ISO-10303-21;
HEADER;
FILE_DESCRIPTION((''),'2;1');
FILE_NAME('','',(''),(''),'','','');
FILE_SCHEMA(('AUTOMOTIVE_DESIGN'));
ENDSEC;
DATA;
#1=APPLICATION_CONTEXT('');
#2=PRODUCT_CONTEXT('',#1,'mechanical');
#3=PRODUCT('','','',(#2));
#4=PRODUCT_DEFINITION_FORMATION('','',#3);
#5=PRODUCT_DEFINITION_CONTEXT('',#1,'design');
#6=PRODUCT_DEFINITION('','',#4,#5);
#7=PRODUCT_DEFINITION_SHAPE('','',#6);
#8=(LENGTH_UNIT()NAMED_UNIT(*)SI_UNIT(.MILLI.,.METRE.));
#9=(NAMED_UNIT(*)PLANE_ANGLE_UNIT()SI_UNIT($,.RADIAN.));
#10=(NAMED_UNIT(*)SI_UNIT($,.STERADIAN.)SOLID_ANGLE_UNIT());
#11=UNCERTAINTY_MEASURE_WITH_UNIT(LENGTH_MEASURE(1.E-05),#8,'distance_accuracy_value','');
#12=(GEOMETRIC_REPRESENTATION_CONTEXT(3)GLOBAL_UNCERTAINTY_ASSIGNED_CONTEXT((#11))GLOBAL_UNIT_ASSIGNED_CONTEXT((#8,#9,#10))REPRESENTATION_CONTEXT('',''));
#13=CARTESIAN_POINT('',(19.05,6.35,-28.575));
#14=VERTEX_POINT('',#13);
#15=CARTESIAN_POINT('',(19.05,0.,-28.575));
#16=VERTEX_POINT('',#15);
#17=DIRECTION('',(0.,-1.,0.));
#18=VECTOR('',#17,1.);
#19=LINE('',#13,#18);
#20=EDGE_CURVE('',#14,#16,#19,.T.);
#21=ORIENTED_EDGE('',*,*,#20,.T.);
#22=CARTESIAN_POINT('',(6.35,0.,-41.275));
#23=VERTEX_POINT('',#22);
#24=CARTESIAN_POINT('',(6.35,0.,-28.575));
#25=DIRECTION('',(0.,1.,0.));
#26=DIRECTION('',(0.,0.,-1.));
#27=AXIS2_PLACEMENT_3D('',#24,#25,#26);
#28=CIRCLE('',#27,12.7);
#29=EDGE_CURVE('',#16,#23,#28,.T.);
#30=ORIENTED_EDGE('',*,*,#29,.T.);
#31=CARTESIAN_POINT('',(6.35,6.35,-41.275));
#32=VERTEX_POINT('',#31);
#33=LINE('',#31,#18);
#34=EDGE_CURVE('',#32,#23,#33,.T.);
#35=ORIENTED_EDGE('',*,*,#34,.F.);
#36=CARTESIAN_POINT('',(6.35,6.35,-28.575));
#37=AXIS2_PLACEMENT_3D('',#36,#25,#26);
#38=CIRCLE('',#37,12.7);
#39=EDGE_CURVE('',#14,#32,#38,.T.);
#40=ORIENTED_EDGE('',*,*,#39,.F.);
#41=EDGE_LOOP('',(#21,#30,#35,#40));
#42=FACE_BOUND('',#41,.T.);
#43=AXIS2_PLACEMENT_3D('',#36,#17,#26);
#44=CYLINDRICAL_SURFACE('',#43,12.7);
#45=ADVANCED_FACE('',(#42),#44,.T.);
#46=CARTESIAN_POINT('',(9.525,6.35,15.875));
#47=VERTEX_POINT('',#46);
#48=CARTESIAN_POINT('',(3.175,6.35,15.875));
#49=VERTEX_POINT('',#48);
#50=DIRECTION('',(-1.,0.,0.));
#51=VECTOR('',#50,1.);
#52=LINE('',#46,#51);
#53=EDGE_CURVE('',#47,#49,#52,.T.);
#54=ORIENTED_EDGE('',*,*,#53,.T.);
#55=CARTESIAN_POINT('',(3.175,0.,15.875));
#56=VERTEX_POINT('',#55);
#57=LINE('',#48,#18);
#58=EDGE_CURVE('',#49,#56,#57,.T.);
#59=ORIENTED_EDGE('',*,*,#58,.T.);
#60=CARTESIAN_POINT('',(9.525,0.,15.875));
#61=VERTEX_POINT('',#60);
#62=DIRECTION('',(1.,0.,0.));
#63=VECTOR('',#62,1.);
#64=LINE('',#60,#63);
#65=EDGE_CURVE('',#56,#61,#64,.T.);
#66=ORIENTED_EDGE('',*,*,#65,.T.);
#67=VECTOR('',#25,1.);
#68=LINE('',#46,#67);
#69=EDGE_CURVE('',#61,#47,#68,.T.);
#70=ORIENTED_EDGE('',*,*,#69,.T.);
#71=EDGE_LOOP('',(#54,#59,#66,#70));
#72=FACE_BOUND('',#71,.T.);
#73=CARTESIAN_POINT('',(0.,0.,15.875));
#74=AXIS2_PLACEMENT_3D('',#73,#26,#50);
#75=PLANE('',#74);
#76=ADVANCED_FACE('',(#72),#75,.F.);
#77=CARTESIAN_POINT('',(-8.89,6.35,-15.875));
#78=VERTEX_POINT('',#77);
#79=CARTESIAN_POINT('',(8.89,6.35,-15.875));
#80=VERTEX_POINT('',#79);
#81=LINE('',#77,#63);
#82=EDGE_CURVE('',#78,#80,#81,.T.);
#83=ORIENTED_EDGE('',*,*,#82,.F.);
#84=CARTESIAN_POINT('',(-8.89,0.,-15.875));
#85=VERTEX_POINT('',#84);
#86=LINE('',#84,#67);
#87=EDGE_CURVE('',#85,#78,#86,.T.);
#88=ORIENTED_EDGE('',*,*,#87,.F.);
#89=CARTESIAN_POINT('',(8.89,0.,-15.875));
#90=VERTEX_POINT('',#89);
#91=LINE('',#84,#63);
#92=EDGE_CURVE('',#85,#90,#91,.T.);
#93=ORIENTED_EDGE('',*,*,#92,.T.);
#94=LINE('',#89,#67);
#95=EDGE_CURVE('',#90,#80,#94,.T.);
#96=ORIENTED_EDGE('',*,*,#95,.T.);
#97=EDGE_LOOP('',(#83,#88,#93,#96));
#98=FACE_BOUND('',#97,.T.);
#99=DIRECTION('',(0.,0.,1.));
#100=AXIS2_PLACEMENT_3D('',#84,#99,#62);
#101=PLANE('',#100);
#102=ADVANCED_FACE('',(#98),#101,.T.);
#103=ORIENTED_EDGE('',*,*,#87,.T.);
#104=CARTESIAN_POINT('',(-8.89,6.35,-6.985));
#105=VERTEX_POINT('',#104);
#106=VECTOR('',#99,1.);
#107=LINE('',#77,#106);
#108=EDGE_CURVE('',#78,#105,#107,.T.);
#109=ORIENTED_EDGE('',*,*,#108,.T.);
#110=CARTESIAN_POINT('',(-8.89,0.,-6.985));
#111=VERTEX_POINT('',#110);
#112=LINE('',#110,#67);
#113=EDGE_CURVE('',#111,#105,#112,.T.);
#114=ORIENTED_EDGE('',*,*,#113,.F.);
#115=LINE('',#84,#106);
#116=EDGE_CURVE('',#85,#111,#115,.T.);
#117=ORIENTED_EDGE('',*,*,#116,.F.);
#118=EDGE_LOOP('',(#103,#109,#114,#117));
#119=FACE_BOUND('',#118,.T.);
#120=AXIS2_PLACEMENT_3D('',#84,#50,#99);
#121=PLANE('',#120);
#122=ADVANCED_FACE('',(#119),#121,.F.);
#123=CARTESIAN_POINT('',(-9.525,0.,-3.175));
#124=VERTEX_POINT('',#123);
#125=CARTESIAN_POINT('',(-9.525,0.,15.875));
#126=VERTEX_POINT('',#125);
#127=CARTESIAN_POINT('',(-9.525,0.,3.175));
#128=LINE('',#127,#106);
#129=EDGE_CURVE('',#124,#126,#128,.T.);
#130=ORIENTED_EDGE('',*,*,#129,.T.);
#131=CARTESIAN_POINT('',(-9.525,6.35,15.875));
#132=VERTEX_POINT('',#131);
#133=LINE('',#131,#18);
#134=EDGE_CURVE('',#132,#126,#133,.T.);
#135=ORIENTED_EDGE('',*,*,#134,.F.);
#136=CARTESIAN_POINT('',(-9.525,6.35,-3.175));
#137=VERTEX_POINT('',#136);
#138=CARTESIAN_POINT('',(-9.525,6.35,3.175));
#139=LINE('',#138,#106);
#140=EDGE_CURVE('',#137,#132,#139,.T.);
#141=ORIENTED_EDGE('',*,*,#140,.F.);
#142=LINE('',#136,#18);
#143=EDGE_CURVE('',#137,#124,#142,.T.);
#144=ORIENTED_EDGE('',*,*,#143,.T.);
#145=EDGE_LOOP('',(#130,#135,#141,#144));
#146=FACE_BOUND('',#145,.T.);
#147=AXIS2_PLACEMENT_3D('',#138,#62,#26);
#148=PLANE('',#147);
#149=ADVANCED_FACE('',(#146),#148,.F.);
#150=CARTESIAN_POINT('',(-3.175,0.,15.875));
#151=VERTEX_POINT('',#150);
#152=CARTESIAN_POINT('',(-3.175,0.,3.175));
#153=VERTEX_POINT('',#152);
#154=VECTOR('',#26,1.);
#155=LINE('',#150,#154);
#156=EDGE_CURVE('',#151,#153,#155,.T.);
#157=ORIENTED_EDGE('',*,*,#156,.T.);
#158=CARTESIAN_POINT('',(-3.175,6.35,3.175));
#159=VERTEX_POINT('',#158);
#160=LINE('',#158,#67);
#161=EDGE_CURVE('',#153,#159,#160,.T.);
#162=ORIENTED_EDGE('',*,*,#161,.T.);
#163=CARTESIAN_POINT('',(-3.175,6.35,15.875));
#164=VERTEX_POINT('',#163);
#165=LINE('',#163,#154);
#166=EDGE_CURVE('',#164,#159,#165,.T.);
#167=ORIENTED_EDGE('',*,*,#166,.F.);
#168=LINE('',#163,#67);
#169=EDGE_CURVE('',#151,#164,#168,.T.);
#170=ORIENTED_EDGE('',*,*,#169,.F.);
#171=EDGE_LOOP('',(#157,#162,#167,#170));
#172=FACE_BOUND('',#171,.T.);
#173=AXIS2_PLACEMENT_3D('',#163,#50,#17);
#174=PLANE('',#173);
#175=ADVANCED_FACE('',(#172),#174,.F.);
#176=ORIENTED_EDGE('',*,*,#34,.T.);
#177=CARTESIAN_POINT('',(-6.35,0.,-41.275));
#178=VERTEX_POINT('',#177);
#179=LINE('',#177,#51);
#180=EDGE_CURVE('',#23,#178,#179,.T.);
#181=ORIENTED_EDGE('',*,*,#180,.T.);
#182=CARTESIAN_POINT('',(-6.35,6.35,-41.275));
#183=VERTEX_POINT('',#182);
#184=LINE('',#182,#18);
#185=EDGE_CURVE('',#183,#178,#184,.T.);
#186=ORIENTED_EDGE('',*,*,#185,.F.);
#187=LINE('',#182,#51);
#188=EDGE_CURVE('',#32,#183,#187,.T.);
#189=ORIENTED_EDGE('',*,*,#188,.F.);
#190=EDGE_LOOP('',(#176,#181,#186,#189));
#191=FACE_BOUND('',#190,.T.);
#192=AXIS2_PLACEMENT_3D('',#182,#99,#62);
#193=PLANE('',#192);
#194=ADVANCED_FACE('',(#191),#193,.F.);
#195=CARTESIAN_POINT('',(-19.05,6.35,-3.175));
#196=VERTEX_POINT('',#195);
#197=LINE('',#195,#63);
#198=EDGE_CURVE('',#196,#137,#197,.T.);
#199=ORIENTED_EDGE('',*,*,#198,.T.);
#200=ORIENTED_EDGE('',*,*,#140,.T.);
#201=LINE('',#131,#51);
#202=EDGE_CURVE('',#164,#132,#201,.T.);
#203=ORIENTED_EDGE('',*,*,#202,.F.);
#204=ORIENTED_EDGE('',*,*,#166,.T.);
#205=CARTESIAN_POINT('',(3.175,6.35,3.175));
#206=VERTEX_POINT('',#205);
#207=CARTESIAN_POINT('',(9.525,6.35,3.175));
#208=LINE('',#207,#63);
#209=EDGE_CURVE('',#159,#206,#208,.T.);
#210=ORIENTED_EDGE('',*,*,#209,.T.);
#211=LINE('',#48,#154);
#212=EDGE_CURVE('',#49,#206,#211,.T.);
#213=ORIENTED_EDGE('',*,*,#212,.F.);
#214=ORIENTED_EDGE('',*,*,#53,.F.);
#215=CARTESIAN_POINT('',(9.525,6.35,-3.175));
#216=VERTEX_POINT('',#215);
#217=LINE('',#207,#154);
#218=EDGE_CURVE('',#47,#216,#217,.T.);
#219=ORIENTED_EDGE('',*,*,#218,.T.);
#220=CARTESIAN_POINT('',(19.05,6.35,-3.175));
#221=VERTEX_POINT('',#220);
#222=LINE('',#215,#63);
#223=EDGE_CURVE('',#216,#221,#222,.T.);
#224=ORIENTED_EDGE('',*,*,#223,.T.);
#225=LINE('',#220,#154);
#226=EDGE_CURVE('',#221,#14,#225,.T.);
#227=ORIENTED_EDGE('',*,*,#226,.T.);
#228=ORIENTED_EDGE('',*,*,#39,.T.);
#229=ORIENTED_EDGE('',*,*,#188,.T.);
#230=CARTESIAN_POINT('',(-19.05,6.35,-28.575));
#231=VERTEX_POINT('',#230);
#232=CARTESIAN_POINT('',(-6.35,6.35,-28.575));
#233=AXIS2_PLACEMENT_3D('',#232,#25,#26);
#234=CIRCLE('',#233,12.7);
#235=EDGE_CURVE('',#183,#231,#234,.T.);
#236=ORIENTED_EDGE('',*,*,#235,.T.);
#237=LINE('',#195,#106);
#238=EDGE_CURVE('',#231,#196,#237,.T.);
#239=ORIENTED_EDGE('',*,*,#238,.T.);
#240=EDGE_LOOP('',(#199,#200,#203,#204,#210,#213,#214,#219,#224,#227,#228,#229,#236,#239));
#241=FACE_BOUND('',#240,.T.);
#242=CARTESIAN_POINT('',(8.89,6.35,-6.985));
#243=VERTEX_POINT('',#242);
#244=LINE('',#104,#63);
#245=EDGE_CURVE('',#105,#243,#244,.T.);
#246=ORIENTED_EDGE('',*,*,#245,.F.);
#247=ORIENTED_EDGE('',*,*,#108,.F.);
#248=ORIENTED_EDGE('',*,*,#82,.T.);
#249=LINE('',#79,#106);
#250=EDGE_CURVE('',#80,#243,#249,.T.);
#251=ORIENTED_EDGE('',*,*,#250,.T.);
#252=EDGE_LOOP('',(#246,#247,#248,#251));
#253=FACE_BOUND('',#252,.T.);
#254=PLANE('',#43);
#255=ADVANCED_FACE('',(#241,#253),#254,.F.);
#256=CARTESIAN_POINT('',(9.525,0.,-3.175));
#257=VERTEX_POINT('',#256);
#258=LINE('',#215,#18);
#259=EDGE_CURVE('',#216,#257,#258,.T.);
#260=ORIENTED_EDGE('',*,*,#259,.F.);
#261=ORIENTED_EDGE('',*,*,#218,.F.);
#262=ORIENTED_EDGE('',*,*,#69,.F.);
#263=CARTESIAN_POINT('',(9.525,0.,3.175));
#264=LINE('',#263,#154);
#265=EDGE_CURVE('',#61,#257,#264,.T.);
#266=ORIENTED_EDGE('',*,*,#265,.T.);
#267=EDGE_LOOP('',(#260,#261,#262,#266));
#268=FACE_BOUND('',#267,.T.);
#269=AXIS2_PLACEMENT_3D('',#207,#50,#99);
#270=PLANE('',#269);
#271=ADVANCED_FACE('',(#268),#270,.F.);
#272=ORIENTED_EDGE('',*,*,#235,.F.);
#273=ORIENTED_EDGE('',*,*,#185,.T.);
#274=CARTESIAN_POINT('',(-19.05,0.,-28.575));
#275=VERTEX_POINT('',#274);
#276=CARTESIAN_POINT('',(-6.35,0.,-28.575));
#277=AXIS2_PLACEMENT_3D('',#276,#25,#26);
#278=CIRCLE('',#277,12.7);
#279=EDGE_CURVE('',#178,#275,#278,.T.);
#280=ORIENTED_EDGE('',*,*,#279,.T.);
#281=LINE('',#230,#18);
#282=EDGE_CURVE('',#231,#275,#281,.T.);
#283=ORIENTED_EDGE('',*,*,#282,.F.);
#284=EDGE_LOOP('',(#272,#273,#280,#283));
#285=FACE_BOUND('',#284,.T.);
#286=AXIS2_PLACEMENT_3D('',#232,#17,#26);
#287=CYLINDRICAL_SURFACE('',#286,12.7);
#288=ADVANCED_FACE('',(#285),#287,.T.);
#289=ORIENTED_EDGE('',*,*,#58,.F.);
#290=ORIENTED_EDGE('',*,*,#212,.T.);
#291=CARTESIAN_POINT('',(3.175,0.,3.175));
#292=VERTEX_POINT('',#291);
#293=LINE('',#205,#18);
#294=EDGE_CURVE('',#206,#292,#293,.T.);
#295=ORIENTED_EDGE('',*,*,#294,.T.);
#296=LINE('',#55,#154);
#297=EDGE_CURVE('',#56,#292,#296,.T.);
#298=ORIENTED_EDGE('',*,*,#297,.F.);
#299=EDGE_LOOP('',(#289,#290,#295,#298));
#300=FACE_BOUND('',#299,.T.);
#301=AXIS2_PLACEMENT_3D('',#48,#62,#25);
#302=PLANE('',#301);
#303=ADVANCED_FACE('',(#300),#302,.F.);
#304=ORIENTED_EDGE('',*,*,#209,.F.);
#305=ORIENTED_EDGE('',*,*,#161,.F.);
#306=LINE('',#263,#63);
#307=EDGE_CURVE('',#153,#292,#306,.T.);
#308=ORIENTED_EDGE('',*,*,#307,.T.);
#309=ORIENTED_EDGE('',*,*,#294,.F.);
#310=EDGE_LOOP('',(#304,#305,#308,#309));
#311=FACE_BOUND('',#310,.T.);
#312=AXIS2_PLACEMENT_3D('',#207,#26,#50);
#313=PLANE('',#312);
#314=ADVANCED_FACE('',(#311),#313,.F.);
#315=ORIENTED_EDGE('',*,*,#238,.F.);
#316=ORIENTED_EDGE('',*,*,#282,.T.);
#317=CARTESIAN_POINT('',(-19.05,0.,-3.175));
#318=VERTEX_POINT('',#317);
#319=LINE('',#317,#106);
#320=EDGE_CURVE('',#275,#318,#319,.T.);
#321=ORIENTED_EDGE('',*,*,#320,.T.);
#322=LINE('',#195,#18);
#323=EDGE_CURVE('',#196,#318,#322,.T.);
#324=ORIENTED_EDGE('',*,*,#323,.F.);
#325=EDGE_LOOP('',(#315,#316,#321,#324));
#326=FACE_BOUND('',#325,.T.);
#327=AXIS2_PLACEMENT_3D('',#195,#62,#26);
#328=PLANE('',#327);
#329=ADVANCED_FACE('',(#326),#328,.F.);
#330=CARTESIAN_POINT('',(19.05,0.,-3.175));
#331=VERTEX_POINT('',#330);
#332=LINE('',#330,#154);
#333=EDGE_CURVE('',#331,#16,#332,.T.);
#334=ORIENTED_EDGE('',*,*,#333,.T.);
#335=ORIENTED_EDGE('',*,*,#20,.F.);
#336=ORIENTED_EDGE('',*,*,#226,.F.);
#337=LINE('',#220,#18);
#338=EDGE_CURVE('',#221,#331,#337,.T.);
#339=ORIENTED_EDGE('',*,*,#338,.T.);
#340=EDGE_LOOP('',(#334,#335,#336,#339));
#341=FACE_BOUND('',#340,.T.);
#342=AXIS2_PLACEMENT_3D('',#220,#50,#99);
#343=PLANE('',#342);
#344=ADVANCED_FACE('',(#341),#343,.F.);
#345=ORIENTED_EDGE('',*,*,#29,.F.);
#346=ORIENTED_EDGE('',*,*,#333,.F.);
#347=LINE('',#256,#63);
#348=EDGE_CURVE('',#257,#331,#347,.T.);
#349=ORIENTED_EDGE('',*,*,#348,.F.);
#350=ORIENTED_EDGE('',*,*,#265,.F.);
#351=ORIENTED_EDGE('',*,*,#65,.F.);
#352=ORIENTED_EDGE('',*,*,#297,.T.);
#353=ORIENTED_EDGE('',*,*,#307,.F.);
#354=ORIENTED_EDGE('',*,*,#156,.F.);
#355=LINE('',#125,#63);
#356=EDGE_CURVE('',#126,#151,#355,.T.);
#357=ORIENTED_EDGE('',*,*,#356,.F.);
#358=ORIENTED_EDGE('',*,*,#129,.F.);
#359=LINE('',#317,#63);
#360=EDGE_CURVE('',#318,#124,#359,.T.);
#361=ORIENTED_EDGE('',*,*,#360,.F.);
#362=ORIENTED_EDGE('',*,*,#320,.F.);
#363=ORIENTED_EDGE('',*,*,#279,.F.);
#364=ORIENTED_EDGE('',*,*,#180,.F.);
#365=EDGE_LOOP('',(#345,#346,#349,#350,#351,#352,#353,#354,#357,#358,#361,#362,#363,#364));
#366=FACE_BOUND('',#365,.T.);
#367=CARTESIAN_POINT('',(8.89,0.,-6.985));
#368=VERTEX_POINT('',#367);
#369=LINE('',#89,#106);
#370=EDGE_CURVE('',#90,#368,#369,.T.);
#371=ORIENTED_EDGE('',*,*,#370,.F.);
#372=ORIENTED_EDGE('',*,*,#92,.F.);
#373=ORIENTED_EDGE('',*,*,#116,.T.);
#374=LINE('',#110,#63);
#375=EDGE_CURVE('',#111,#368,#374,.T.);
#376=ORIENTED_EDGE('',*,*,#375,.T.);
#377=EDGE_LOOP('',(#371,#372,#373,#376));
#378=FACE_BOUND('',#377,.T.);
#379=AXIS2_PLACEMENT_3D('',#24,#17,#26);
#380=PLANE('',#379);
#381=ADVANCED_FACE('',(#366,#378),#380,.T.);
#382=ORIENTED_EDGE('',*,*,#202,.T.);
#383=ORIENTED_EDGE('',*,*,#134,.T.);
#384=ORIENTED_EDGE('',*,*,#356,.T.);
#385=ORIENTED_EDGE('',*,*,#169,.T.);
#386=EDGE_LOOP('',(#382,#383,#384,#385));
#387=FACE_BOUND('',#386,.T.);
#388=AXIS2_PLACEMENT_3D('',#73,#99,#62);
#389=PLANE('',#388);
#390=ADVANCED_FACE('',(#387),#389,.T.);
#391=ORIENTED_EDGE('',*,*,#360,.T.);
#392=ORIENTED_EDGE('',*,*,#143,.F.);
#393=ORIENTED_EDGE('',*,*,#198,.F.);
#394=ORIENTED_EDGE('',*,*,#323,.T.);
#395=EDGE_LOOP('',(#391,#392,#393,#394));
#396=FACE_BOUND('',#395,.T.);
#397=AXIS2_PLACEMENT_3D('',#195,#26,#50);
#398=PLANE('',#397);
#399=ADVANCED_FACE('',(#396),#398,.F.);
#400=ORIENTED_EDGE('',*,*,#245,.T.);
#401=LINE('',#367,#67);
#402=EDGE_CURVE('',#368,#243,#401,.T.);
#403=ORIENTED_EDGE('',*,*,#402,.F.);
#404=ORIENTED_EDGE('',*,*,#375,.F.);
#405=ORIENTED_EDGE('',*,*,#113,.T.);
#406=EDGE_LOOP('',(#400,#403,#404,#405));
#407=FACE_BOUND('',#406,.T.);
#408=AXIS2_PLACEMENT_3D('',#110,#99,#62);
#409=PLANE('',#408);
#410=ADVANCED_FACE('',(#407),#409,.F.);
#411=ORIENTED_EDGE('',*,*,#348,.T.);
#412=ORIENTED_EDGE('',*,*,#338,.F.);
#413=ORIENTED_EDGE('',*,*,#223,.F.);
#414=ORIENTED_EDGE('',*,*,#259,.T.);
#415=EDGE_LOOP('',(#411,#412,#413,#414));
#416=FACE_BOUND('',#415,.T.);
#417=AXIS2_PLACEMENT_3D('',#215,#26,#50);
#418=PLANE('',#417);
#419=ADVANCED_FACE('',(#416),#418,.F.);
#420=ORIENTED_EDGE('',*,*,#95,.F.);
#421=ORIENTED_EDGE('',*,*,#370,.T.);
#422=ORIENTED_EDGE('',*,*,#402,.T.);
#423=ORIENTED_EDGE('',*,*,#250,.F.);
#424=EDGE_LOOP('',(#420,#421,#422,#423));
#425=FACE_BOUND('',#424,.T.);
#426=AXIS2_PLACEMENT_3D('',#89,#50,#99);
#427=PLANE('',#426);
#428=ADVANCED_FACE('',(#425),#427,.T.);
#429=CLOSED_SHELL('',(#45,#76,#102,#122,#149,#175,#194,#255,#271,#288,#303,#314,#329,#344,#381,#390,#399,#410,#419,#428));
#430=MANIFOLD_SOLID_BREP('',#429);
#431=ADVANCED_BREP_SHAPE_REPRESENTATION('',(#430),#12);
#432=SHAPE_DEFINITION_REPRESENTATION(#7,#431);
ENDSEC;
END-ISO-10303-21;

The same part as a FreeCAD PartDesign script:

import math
import FreeCAD as App
import Part
import Sketcher
from FreeCAD import Vector
Q = App.Units.Quantity

doc = App.newDocument("Part")
params = doc.addObject("Spreadsheet::Sheet", "Params")
for row, (alias, value) in enumerate([
    ("sketch1_radius", "0.5 in"),
    ("sketch1_height", "1 in"),
    ("sketch1_width", "0.5 in"),
    ("sketch1_width2", "0.75 in"),
    ("sketch1_height2", "0.25 in"),
    ("pad1_length", "0.25 in"),
    ("sketch2_width", "0.7 in"),
    ("sketch2_height", "0.35 in"),
    ("pocket1_length", "0.25 in"),
    ("sketch3_width", "0.25 in"),
    ("pad2_length", "0.5 in"),
], start=1):
    params.set(f"A{row}", alias)
    params.set(f"B{row}", "=" + value)
    params.setAlias(f"B{row}", alias)

body = doc.addObject("PartDesign::Body", "Body")

sketch1 = body.newObject("Sketcher::SketchObject", "Sketch")
sketch1.AttachmentSupport = (doc.getObject("XZ_Plane"), [""])
sketch1.MapMode = "FlatFace"
sketch1.addGeometry([
    Part.LineSegment(Vector(-10, 3, 0), Vector(10, 3, 0)),
    Part.LineSegment(Vector(10, 3, 0), Vector(10, -3, 0)),
    Part.LineSegment(Vector(10, -3, 0), Vector(19, -3, 0)),
    Part.LineSegment(Vector(19, -3, 0), Vector(19, -29, 0)),
    Part.ArcOfCircle(Part.Circle(Vector(6, -29, 0), Vector(0, 0, 1), 13), math.radians(-90), math.radians(0)),
    Part.LineSegment(Vector(6, -41, 0), Vector(-6, -41, 0)),
    Part.ArcOfCircle(Part.Circle(Vector(-6, -29, 0), Vector(0, 0, 1), 13), math.radians(180), math.radians(270)),
    Part.LineSegment(Vector(-19, -29, 0), Vector(-19, -3, 0)),
    Part.LineSegment(Vector(-19, -3, 0), Vector(-10, -3, 0)),
    Part.LineSegment(Vector(-10, -3, 0), Vector(-10, 3, 0)),
], False)
sketch1.addConstraint([
    Sketcher.Constraint("Coincident", 0, 2, 1, 1),
    Sketcher.Constraint("Coincident", 1, 2, 2, 1),
    Sketcher.Constraint("Coincident", 2, 2, 3, 1),
    Sketcher.Constraint("Tangent", 3, 2, 4, 2),
    Sketcher.Constraint("Tangent", 4, 1, 5, 1),
    Sketcher.Constraint("Tangent", 5, 2, 6, 2),
    Sketcher.Constraint("Tangent", 6, 1, 7, 1),
    Sketcher.Constraint("Coincident", 7, 2, 8, 1),
    Sketcher.Constraint("Coincident", 8, 2, 9, 1),
    Sketcher.Constraint("Coincident", 9, 2, 0, 1),
    Sketcher.Constraint("Horizontal", 0),
    Sketcher.Constraint("Vertical", 1),
    Sketcher.Constraint("Horizontal", 2),
    Sketcher.Constraint("Vertical", 3),
    Sketcher.Constraint("Horizontal", 5),
    Sketcher.Constraint("Vertical", 7),
    Sketcher.Constraint("Horizontal", 8),
    Sketcher.Constraint("Vertical", 9),
    Sketcher.Constraint("Equal", 4, 6),
    Sketcher.Constraint("Symmetric", 0, 2, 8, 2, -1, 1),
    Sketcher.Constraint("Symmetric", 2, 2, 7, 2, -2),
    Sketcher.Constraint("Radius", 4, Q("0.5 in")),
    Sketcher.Constraint("DistanceY", 3, 2, 3, 1, Q("1 in")),
    Sketcher.Constraint("DistanceX", 5, 2, 5, 1, Q("0.5 in")),
    Sketcher.Constraint("DistanceX", 0, 1, 0, 2, Q("0.75 in")),
    Sketcher.Constraint("DistanceY", 1, 2, 1, 1, Q("0.25 in")),
])
sketch1.setExpression("Constraints[21]", "Params.sketch1_radius")
sketch1.setExpression("Constraints[22]", "Params.sketch1_height")
sketch1.setExpression("Constraints[23]", "Params.sketch1_width")
sketch1.setExpression("Constraints[24]", "Params.sketch1_width2")
sketch1.setExpression("Constraints[25]", "Params.sketch1_height2")
pad1 = body.newObject("PartDesign::Pad", "Pad")
pad1.Profile = sketch1
pad1.setExpression("Length", "Params.pad1_length")
pad1.Reversed = True

sketch2 = body.newObject("Sketcher::SketchObject", "Sketch001")
sketch2.AttachmentSupport = (doc.getObject("XZ_Plane"), [""])
sketch2.MapMode = "FlatFace"
sketch2.AttachmentOffset = App.Placement(Vector(0, 0, -0.25 * 25.4), App.Rotation())
sketch2.addGeometry([
    Part.LineSegment(Vector(-9, -16, 0), Vector(-9, -7, 0)),
    Part.LineSegment(Vector(-9, -7, 0), Vector(9, -7, 0)),
    Part.LineSegment(Vector(9, -7, 0), Vector(9, -16, 0)),
    Part.LineSegment(Vector(9, -16, 0), Vector(-9, -16, 0)),
], False)
sketch2.addConstraint([
    Sketcher.Constraint("Coincident", 0, 2, 1, 1),
    Sketcher.Constraint("Coincident", 1, 2, 2, 1),
    Sketcher.Constraint("Coincident", 2, 2, 3, 1),
    Sketcher.Constraint("Coincident", 3, 2, 0, 1),
    Sketcher.Constraint("Vertical", 0),
    Sketcher.Constraint("Horizontal", 1),
    Sketcher.Constraint("Vertical", 2),
    Sketcher.Constraint("Horizontal", 3),
    Sketcher.Constraint("DistanceX", 1, 1, 1, 2, Q("0.7 in")),
    Sketcher.Constraint("DistanceY", 0, 1, 0, 2, Q("0.35 in")),
    Sketcher.Constraint("DistanceX", 0, 2, -1, 1, Q("0.35 in")),
    Sketcher.Constraint("DistanceY", 0, 2, -1, 1, Q("0.275 in")),
])
sketch2.setExpression("Constraints[8]", "Params.sketch2_width")
sketch2.setExpression("Constraints[9]", "Params.sketch2_height")
pocket1 = body.newObject("PartDesign::Pocket", "Pocket")
pocket1.Profile = sketch2
pocket1.setExpression("Length", "Params.pocket1_length")
pocket1.Reversed = True

sketch3 = body.newObject("Sketcher::SketchObject", "Sketch002")
sketch3.AttachmentSupport = (doc.getObject("XY_Plane"), [""])
sketch3.MapMode = "FlatFace"
sketch3.AttachmentOffset = App.Placement(Vector(0, 0, 0.125 * 25.4), App.Rotation())
sketch3.addGeometry([
    Part.LineSegment(Vector(-10, 6, 0), Vector(-10, 0, 0)),
    Part.LineSegment(Vector(-10, 0, 0), Vector(-3, 0, 0)),
    Part.LineSegment(Vector(-3, 0, 0), Vector(-3, 6, 0)),
    Part.LineSegment(Vector(-3, 6, 0), Vector(-10, 6, 0)),
    Part.LineSegment(Vector(3, 6, 0), Vector(3, 0, 0)),
    Part.LineSegment(Vector(3, 0, 0), Vector(10, 0, 0)),
    Part.LineSegment(Vector(10, 0, 0), Vector(10, 6, 0)),
    Part.LineSegment(Vector(10, 6, 0), Vector(3, 6, 0)),
], False)
sketch3.addConstraint([
    Sketcher.Constraint("Coincident", 0, 2, 1, 1),
    Sketcher.Constraint("Coincident", 1, 2, 2, 1),
    Sketcher.Constraint("Coincident", 2, 2, 3, 1),
    Sketcher.Constraint("Coincident", 3, 2, 0, 1),
    Sketcher.Constraint("Coincident", 4, 2, 5, 1),
    Sketcher.Constraint("Coincident", 5, 2, 6, 1),
    Sketcher.Constraint("Coincident", 6, 2, 7, 1),
    Sketcher.Constraint("Coincident", 7, 2, 4, 1),
    Sketcher.Constraint("Vertical", 0),
    Sketcher.Constraint("Horizontal", 1),
    Sketcher.Constraint("Vertical", 2),
    Sketcher.Constraint("Horizontal", 3),
    Sketcher.Constraint("Vertical", 4),
    Sketcher.Constraint("Horizontal", 5),
    Sketcher.Constraint("Vertical", 6),
    Sketcher.Constraint("Horizontal", 7),
    Sketcher.Constraint("Symmetric", 1, 2, 4, 2, -1, 1),
    Sketcher.Constraint("Symmetric", 0, 2, 5, 2, -2),
    Sketcher.Constraint("Horizontal", 3, 2, 6, 2),
    Sketcher.Constraint("Equal", 7, 0),
    Sketcher.Constraint("DistanceX", 1, 1, 1, 2, Q("0.25 in")),
    Sketcher.Constraint("DistanceX", 0, 2, 4, 2, Q("0.5 in")),
])
sketch3.setExpression("Constraints[20]", "Params.sketch3_width")
pad2 = body.newObject("PartDesign::Pad", "Pad001")
pad2.Profile = sketch3
pad2.setExpression("Length", "Params.pad2_length")

doc.recompute()
